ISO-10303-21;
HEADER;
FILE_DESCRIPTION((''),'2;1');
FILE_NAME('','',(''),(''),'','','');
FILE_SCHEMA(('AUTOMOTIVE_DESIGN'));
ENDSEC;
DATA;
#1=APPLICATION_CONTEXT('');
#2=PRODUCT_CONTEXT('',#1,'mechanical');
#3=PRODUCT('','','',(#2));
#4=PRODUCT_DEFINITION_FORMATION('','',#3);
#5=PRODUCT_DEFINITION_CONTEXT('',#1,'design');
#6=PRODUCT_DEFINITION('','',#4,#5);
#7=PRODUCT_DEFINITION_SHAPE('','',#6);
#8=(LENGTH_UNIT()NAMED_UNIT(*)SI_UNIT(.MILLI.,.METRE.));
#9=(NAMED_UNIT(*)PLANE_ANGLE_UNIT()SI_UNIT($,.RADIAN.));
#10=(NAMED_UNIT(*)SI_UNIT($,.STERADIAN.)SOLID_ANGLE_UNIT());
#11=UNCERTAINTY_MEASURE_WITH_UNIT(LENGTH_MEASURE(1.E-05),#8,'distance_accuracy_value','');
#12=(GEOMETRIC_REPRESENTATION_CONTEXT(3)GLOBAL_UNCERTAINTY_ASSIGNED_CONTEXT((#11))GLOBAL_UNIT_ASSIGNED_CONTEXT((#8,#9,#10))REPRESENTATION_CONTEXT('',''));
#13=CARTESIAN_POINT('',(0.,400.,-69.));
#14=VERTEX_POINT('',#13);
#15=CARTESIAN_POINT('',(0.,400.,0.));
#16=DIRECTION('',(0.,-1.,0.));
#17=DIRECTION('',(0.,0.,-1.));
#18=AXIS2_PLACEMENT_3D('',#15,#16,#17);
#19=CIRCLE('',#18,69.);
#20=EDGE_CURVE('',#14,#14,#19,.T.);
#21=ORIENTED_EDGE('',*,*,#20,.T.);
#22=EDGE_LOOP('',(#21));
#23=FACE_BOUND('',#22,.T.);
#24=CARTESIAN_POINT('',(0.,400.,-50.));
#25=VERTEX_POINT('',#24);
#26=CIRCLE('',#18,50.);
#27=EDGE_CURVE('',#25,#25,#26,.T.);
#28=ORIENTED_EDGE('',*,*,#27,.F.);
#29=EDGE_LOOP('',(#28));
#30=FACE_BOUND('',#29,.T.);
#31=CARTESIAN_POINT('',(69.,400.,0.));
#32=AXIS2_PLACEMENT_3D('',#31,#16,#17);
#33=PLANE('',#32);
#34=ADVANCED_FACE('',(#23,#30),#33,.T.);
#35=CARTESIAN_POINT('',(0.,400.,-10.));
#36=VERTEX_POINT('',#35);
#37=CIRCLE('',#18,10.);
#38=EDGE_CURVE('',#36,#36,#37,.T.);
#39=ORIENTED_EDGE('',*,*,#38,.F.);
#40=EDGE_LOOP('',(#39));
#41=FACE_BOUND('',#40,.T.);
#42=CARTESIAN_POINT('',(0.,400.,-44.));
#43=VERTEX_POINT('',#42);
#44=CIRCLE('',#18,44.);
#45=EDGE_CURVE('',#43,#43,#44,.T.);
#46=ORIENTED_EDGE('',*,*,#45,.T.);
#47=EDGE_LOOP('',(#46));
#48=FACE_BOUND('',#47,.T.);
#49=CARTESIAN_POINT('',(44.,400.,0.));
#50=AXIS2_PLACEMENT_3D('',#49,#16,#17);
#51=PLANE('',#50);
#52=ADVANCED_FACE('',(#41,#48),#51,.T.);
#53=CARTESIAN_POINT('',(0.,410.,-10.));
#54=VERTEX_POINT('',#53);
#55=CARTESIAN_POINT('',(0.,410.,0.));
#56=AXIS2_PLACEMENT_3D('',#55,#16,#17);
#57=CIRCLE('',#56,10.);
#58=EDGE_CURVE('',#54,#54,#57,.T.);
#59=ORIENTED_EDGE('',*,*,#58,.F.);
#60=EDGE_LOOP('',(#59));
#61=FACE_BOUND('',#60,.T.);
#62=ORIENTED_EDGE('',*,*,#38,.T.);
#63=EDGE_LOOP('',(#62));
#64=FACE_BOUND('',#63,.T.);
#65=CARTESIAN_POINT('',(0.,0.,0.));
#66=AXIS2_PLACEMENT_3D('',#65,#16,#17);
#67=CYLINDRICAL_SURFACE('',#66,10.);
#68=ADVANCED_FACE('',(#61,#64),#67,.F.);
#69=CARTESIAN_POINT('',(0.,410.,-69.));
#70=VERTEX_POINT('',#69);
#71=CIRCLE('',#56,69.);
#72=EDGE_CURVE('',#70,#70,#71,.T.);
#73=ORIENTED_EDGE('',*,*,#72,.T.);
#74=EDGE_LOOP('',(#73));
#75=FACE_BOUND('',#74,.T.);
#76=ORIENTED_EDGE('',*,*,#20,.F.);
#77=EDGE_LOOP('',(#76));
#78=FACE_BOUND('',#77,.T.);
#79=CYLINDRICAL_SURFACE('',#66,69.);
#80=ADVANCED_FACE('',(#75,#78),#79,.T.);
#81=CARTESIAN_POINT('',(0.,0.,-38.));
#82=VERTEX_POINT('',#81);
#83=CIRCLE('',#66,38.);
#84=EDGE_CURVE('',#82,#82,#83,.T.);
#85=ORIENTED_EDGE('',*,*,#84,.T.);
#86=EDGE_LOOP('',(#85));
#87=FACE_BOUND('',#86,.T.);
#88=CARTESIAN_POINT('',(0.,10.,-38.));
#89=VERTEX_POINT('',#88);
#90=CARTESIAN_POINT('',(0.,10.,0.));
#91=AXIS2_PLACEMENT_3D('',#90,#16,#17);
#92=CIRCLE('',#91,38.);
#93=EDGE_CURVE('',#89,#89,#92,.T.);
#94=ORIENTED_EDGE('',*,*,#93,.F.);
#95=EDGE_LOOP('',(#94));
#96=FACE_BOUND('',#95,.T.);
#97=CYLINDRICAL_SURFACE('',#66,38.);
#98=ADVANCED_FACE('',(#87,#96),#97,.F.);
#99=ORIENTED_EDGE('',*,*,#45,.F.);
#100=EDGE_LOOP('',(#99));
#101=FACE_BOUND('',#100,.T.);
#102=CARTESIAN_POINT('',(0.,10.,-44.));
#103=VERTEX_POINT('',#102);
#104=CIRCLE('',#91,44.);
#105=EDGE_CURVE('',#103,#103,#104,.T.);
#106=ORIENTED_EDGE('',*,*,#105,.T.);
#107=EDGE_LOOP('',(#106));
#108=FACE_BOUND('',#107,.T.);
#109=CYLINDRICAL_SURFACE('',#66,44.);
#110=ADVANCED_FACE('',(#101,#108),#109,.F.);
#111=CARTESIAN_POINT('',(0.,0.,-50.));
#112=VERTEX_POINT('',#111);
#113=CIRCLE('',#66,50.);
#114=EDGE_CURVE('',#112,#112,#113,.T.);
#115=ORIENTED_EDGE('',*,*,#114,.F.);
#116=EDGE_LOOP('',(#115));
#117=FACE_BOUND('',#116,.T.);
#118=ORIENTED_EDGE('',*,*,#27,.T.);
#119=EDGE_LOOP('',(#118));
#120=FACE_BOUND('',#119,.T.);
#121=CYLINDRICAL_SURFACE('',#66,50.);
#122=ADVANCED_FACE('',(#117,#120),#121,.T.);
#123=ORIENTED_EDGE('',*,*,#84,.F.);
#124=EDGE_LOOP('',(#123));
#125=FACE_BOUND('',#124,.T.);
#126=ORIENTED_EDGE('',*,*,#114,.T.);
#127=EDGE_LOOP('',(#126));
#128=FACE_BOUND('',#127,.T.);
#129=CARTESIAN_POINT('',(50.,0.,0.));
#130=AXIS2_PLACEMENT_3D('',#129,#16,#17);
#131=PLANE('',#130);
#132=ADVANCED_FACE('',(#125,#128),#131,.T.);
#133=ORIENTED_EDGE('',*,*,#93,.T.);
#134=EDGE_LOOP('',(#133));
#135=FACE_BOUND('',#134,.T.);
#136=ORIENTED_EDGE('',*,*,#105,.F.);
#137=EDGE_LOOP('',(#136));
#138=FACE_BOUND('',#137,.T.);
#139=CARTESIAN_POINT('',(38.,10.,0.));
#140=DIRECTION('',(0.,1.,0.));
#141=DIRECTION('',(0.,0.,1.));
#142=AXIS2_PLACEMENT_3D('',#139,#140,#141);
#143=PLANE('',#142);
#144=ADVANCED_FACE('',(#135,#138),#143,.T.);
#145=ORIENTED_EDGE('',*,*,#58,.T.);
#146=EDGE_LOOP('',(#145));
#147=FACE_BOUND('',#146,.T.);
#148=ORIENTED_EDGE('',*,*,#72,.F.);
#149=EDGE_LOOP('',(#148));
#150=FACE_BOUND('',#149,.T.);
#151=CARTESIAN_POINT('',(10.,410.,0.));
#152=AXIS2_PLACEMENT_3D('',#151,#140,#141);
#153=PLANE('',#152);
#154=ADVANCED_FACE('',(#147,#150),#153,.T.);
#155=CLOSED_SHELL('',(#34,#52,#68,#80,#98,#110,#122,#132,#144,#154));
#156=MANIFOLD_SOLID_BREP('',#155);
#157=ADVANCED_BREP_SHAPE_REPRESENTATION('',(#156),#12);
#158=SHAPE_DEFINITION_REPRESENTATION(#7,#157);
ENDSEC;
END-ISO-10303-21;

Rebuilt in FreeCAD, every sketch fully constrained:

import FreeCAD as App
import Part
import Sketcher

V = App.Vector
Q = App.Units.Quantity

doc = App.newDocument("Part")
body = doc.addObject("PartDesign::Body", "Body")

# Sketch on XY plane
sketch1 = doc.addObject("Sketcher::SketchObject", "Sketch")
body.addObject(sketch1)
sketch1.AttachmentSupport = (doc.XY_Plane, [""])
sketch1.MapMode = "FlatFace"
sketch1.addGeometry([
    Part.LineSegment(V(69, 410, 0), V(10, 410, 0)),  # 0
    Part.LineSegment(V(10, 410, 0), V(10, 400, 0)),  # 1
    Part.LineSegment(V(10, 400, 0), V(44, 400, 0)),  # 2
    Part.LineSegment(V(44, 400, 0), V(44, 10, 0)),  # 3
    Part.LineSegment(V(44, 10, 0), V(38, 10, 0)),  # 4
    Part.LineSegment(V(38, 10, 0), V(38, 0, 0)),  # 5
    Part.LineSegment(V(38, 0, 0), V(50, 0, 0)),  # 6
    Part.LineSegment(V(50, 0, 0), V(50, 400, 0)),  # 7
    Part.LineSegment(V(50, 400, 0), V(69, 400, 0)),  # 8
    Part.LineSegment(V(69, 400, 0), V(69, 410, 0)),  # 9
], False)
sketch1.addConstraint([
    Sketcher.Constraint("Coincident", 0, 2, 1, 1),
    Sketcher.Constraint("Coincident", 1, 2, 2, 1),
    Sketcher.Constraint("Coincident", 2, 2, 3, 1),
    Sketcher.Constraint("Coincident", 3, 2, 4, 1),
    Sketcher.Constraint("Coincident", 4, 2, 5, 1),
    Sketcher.Constraint("Coincident", 5, 2, 6, 1),
    Sketcher.Constraint("Coincident", 6, 2, 7, 1),
    Sketcher.Constraint("Coincident", 7, 2, 8, 1),
    Sketcher.Constraint("Coincident", 8, 2, 9, 1),
    Sketcher.Constraint("Coincident", 9, 2, 0, 1),
    Sketcher.Constraint("Horizontal", 0),
    Sketcher.Constraint("Vertical", 1),
    Sketcher.Constraint("Horizontal", 2),
    Sketcher.Constraint("Vertical", 3),
    Sketcher.Constraint("Horizontal", 4),
    Sketcher.Constraint("Vertical", 5),
    Sketcher.Constraint("Horizontal", 6),
    Sketcher.Constraint("Vertical", 7),
    Sketcher.Constraint("Horizontal", 8),
    Sketcher.Constraint("Vertical", 9),
    Sketcher.Constraint("PointOnObject", 5, 2, -1),
    Sketcher.Constraint("Horizontal", 2, 2, 7, 2),
    Sketcher.Constraint("Equal", 1, 5),
    Sketcher.Constraint("DistanceX", 0, 2, 0, 1, Q("59 mm")),
    Sketcher.Constraint("DistanceX", 2, 1, 2, 2, Q("34 mm")),
    Sketcher.Constraint("DistanceX", 4, 2, 4, 1, Q("6 mm")),
    Sketcher.Constraint("DistanceX", 6, 1, 6, 2, Q("12 mm")),
    Sketcher.Constraint("DistanceY", 1, 2, 1, 1, Q("10 mm")),
    Sketcher.Constraint("DistanceY", 3, 2, 3, 1, Q("390 mm")),
    Sketcher.Constraint("DistanceX", -1, 1, 0, 2, Q("10 mm")),
])
revolution = doc.addObject("PartDesign::Revolution", "Revolution")
body.addObject(revolution)
revolution.Profile = sketch1
revolution.ReferenceAxis = (sketch1, ["V_Axis"])
revolution.Angle = 360

doc.recompute()
